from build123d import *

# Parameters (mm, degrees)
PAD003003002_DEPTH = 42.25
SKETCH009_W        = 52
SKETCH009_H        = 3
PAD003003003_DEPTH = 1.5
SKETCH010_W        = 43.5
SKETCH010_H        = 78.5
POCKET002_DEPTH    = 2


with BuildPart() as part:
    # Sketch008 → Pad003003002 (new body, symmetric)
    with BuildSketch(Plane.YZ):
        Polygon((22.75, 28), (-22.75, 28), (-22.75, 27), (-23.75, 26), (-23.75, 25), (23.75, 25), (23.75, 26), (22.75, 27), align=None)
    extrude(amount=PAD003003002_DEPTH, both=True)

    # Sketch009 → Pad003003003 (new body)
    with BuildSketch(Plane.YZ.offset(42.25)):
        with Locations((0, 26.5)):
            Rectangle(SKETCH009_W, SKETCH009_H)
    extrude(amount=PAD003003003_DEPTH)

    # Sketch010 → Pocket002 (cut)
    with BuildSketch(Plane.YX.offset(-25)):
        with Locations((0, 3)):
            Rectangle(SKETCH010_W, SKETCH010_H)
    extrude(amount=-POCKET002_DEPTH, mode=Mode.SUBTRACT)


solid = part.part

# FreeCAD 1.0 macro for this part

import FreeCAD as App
import Part
import Sketcher
from FreeCAD import Vector

doc = App.newDocument("Part")
body = doc.addObject("PartDesign::Body", "Body")

# Sketch on YZ plane
sketch1 = body.newObject("Sketcher::SketchObject", "Sketch")
sketch1.AttachmentSupport = (doc.getObject("YZ_Plane"), [""])
sketch1.MapMode = "FlatFace"
sketch1.addGeometry(Part.LineSegment(Vector(22.75, 28, 0), Vector(-22.75, 28, 0)), False)
sketch1.addGeometry(Part.LineSegment(Vector(-22.75, 28, 0), Vector(-22.75, 27, 0)), False)
sketch1.addGeometry(Part.LineSegment(Vector(-22.75, 27, 0), Vector(-23.75, 26, 0)), False)
sketch1.addGeometry(Part.LineSegment(Vector(-23.75, 26, 0), Vector(-23.75, 25, 0)), False)
sketch1.addGeometry(Part.LineSegment(Vector(-23.75, 25, 0), Vector(23.75, 25, 0)), False)
sketch1.addGeometry(Part.LineSegment(Vector(23.75, 25, 0), Vector(23.75, 26, 0)), False)
sketch1.addGeometry(Part.LineSegment(Vector(23.75, 26, 0), Vector(22.75, 27, 0)), False)
sketch1.addGeometry(Part.LineSegment(Vector(22.75, 27, 0), Vector(22.75, 28, 0)), False)
sketch1.addConstraint(Sketcher.Constraint("Coincident", 0, 2, 1, 1))
sketch1.addConstraint(Sketcher.Constraint("Coincident", 1, 2, 2, 1))
sketch1.addConstraint(Sketcher.Constraint("Coincident", 2, 2, 3, 1))
sketch1.addConstraint(Sketcher.Constraint("Coincident", 3, 2, 4, 1))
sketch1.addConstraint(Sketcher.Constraint("Coincident", 4, 2, 5, 1))
sketch1.addConstraint(Sketcher.Constraint("Coincident", 5, 2, 6, 1))
sketch1.addConstraint(Sketcher.Constraint("Coincident", 6, 2, 7, 1))
sketch1.addConstraint(Sketcher.Constraint("Coincident", 7, 2, 0, 1))
sketch1.addConstraint(Sketcher.Constraint("Horizontal", 0))
sketch1.addConstraint(Sketcher.Constraint("Vertical", 1))
sketch1.addConstraint(Sketcher.Constraint("Vertical", 3))
sketch1.addConstraint(Sketcher.Constraint("Horizontal", 4))
sketch1.addConstraint(Sketcher.Constraint("Vertical", 5))
sketch1.addConstraint(Sketcher.Constraint("Vertical", 7))
sketch1.addConstraint(Sketcher.Constraint("Symmetric", 2, 2, 5, 2, -2))
sketch1.addConstraint(Sketcher.Constraint("Symmetric", 1, 2, 6, 2, -2))
sketch1.addConstraint(Sketcher.Constraint("Perpendicular", 2, 6))
sketch1.addConstraint(Sketcher.Constraint("Equal", 1, 3))
sketch1.addConstraint(Sketcher.Constraint("DistanceY", 1, 2, 1, 1, 1.0))
sketch1.addConstraint(Sketcher.Constraint("DistanceX", 0, 2, 0, 1, 45.5))
sketch1.addConstraint(Sketcher.Constraint("DistanceX", 4, 1, 4, 2, 47.5))
sketch1.addConstraint(Sketcher.Constraint("DistanceY", -1, 1, 0, 2, 28.0))
pad1 = body.newObject("PartDesign::Pad", "Pad")
pad1.Profile = sketch1
pad1.Length = 84.5
pad1.Midplane = True

# Sketch on YZ plane
sketch2 = body.newObject("Sketcher::SketchObject", "Sketch001")
sketch2.AttachmentSupport = (doc.getObject("YZ_Plane"), [""])
sketch2.MapMode = "FlatFace"
sketch2.AttachmentOffset = App.Placement(Vector(0, 0, 42.25), App.Rotation())
sketch2.addGeometry(Part.LineSegment(Vector(-26, 28, 0), Vector(-26, 25, 0)), False)
sketch2.addGeometry(Part.LineSegment(Vector(-26, 25, 0), Vector(26, 25, 0)), False)
sketch2.addGeometry(Part.LineSegment(Vector(26, 25, 0), Vector(26, 28, 0)), False)
sketch2.addGeometry(Part.LineSegment(Vector(26, 28, 0), Vector(-26, 28, 0)), False)
sketch2.addConstraint(Sketcher.Constraint("Coincident", 0, 2, 1, 1))
sketch2.addConstraint(Sketcher.Constraint("Coincident", 1, 2, 2, 1))
sketch2.addConstraint(Sketcher.Constraint("Coincident", 2, 2, 3, 1))
sketch2.addConstraint(Sketcher.Constraint("Coincident", 3, 2, 0, 1))
sketch2.addConstraint(Sketcher.Constraint("Vertical", 0))
sketch2.addConstraint(Sketcher.Constraint("Horizontal", 1))
sketch2.addConstraint(Sketcher.Constraint("Vertical", 2))
sketch2.addConstraint(Sketcher.Constraint("Horizontal", 3))
sketch2.addConstraint(Sketcher.Constraint("DistanceX", 1, 1, 1, 2, 52.0))
sketch2.addConstraint(Sketcher.Constraint("DistanceY", 0, 2, 0, 1, 3.0))
sketch2.addConstraint(Sketcher.Constraint("DistanceX", 0, 2, -1, 1, 26.0))
sketch2.addConstraint(Sketcher.Constraint("DistanceY", -1, 1, 0, 2, 25.0))
pad2 = body.newObject("PartDesign::Pad", "Pad001")
pad2.Profile = sketch2
pad2.Length = 1.5

# Sketch on XY plane
sketch3 = body.newObject("Sketcher::SketchObject", "Sketch002")
sketch3.AttachmentSupport = (doc.getObject("XY_Plane"), [""])
sketch3.MapMode = "FlatFace"
sketch3.AttachmentOffset = App.Placement(Vector(0, 0, 25), App.Rotation())
sketch3.addGeometry(Part.LineSegment(Vector(42.25, -21.75, 0), Vector(-36.25, -21.75, 0)), False)
sketch3.addGeometry(Part.LineSegment(Vector(-36.25, -21.75, 0), Vector(-36.25, 21.75, 0)), False)
sketch3.addGeometry(Part.LineSegment(Vector(-36.25, 21.75, 0), Vector(42.25, 21.75, 0)), False)
sketch3.addGeometry(Part.LineSegment(Vector(42.25, 21.75, 0), Vector(42.25, -21.75, 0)), False)
sketch3.addConstraint(Sketcher.Constraint("Coincident", 0, 2, 1, 1))
sketch3.addConstraint(Sketcher.Constraint("Coincident", 1, 2, 2, 1))
sketch3.addConstraint(Sketcher.Constraint("Coincident", 2, 2, 3, 1))
sketch3.addConstraint(Sketcher.Constraint("Coincident", 3, 2, 0, 1))
sketch3.addConstraint(Sketcher.Constraint("Horizontal", 0))
sketch3.addConstraint(Sketcher.Constraint("Vertical", 1))
sketch3.addConstraint(Sketcher.Constraint("Horizontal", 2))
sketch3.addConstraint(Sketcher.Constraint("Vertical", 3))
sketch3.addConstraint(Sketcher.Constraint("DistanceX", 0, 2, 0, 1, 78.5))
sketch3.addConstraint(Sketcher.Constraint("DistanceY", 1, 1, 1, 2, 43.5))
sketch3.addConstraint(Sketcher.Constraint("DistanceX", 0, 2, -1, 1, 36.25))
sketch3.addConstraint(Sketcher.Constraint("DistanceY", 0, 2, -1, 1, 21.75))
pocket1 = body.newObject("PartDesign::Pocket", "Pocket")
pocket1.Profile = sketch3
pocket1.Length = 2
pocket1.Reversed = True

doc.recompute()
